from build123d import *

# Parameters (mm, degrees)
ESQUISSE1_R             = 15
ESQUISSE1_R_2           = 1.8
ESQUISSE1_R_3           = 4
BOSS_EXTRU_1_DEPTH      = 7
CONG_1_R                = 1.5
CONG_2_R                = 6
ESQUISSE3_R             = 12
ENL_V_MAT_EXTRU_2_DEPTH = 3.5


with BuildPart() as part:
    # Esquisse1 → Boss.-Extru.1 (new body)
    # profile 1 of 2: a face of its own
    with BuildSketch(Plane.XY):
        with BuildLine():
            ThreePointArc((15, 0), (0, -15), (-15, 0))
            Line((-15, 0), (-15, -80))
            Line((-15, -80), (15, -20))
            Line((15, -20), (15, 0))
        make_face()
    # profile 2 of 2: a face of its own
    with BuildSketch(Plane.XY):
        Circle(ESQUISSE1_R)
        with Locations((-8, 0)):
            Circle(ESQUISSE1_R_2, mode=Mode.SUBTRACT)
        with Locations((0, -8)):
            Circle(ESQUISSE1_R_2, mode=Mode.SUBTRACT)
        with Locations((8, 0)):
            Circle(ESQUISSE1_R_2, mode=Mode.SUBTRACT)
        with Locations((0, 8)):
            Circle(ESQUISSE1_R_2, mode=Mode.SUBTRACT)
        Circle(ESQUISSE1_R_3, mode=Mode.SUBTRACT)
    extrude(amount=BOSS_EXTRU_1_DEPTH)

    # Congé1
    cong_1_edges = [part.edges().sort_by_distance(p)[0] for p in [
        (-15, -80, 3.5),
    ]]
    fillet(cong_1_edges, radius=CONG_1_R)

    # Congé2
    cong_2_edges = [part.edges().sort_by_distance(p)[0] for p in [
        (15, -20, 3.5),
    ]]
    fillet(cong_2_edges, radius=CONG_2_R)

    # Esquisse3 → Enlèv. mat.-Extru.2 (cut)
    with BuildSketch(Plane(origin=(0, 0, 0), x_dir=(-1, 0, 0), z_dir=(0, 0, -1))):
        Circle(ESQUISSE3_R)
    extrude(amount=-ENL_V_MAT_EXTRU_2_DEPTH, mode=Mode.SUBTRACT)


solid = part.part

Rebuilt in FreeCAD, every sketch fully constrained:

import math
import FreeCAD as App
import Part
import Sketcher

V = App.Vector


def edges_at(feature, points):
    """Names of the edges that pass closest to the given points."""
    edges = feature.Shape.Edges
    near = lambda p: min(range(len(edges)), key=lambda i: edges[i].distToShape(Part.Vertex(*p))[0])
    return sorted({f"Edge{near(p) + 1}" for p in points})

doc = App.newDocument("Part")
params = doc.addObject("Spreadsheet::Sheet", "Params")
for row, (alias, value) in enumerate([
    ("sketch1_diameter", "8 mm"),
    ("sketch1_radius", "15 mm"),
    ("sketch1_diameter2", "3.6 mm"),
    ("sketch1_height", "80 mm"),
    ("sketch1_height2", "20 mm"),
    ("pad1_length", "7 mm"),
    ("fillet_radius", "1.5 mm"),
    ("fillet2_radius", "6 mm"),
    ("sketch2_diameter", "24 mm"),
    ("pocket1_length", "3.5 mm"),
], start=1):
    params.set(f"A{row}", alias)
    params.set(f"B{row}", "=" + value)
    params.setAlias(f"B{row}", alias)

body = doc.addObject("PartDesign::Body", "Body")

sketch1 = body.newObject("Sketcher::SketchObject", "Sketch")
sketch1.AttachmentSupport = (doc.getObject("XY_Plane"), [""])
sketch1.MapMode = "FlatFace"
sketch1.addGeometry([
    Part.LineSegment(V(-15, 0, 0), V(-15, -80, 0)),
    Part.LineSegment(V(-15, -80, 0), V(15, -20, 0)),
    Part.LineSegment(V(15, -20, 0), V(15, 0, 0)),
    Part.ArcOfCircle(Part.Circle(V(0, 0, 0), V(0, 0, 1), 15), math.radians(0), math.radians(180)),
    Part.Circle(V(8, 0, 0), V(0, 0, 1), 1.8),
    Part.Circle(V(0, -8, 0), V(0, 0, 1), 1.8),
    Part.Circle(V(-8, 0, 0), V(0, 0, 1), 1.8),
    Part.Circle(V(0, 8, 0), V(0, 0, 1), 1.8),
    Part.Circle(V(0, 0, 0), V(0, 0, 1), 4),
], False)
sketch1.addConstraint([
    Sketcher.Constraint("Coincident", 0, 2, 1, 1),
    Sketcher.Constraint("Coincident", 1, 2, 2, 1),
    Sketcher.Constraint("Tangent", 2, 2, 3, 1),
    Sketcher.Constraint("Tangent", 3, 2, 0, 1),
    Sketcher.Constraint("Vertical", 0),
    Sketcher.Constraint("Vertical", 2),
    Sketcher.Constraint("Coincident", 3, 3, -1, 1),
    Sketcher.Constraint("Coincident", 8, 3, -1, 1),
    Sketcher.Constraint("Equal", 4, 5),
    Sketcher.Constraint("Equal", 5, 6),
    Sketcher.Constraint("Equal", 6, 7),
    Sketcher.Constraint("Symmetric", 4, 3, 6, 3, -1, 1),
    Sketcher.Constraint("Symmetric", 5, 3, 7, 3, -1, 1),
    Sketcher.Constraint("PointOnObject", 4, 3, -1),
    Sketcher.Constraint("PointOnObject", 5, 3, -2),
    Sketcher.Constraint("Diameter", 8, 8.0),
    Sketcher.Constraint("Radius", 3, 15.0),
    Sketcher.Constraint("Diameter", 4, 3.6),
    Sketcher.Constraint("DistanceY", 0, 2, 0, 1, 80.0),
    Sketcher.Constraint("DistanceY", 2, 1, 2, 2, 20.0),
    Sketcher.Constraint("DistanceX", -1, 1, 4, 3, 8.0),
    Sketcher.Constraint("DistanceY", 5, 3, -1, 1, 8.0),
])
sketch1.setExpression("Constraints[15]", "Params.sketch1_diameter")
sketch1.setExpression("Constraints[16]", "Params.sketch1_radius")
sketch1.setExpression("Constraints[17]", "Params.sketch1_diameter2")
sketch1.setExpression("Constraints[18]", "Params.sketch1_height")
sketch1.setExpression("Constraints[19]", "Params.sketch1_height2")
pad1 = body.newObject("PartDesign::Pad", "Pad")
pad1.Profile = sketch1
pad1.setExpression("Length", "Params.pad1_length")
doc.recompute()

fillet = body.newObject("PartDesign::Fillet", "Fillet")
fillet.Base = (pad1, edges_at(pad1, [(-15, -80, 3.5)]))
fillet.setExpression("Radius", "Params.fillet_radius")
doc.recompute()

fillet2 = body.newObject("PartDesign::Fillet", "Fillet001")
fillet2.Base = (fillet, edges_at(fillet, [(15, -20, 3.5)]))
fillet2.setExpression("Radius", "Params.fillet2_radius")

sketch2 = body.newObject("Sketcher::SketchObject", "Sketch001")
sketch2.AttachmentSupport = (doc.getObject("XY_Plane"), [""])
sketch2.MapMode = "FlatFace"
sketch2.addGeometry(Part.Circle(V(0, 0, 0), V(0, 0, 1), 12), False)
sketch2.addConstraint([
    Sketcher.Constraint("Coincident", 0, 3, -1, 1),
    Sketcher.Constraint("Diameter", 0, 24.0),
])
sketch2.setExpression("Constraints[1]", "Params.sketch2_diameter")
pocket1 = body.newObject("PartDesign::Pocket", "Pocket")
pocket1.Profile = sketch2
pocket1.setExpression("Length", "Params.pocket1_length")
pocket1.Reversed = True

doc.recompute()
